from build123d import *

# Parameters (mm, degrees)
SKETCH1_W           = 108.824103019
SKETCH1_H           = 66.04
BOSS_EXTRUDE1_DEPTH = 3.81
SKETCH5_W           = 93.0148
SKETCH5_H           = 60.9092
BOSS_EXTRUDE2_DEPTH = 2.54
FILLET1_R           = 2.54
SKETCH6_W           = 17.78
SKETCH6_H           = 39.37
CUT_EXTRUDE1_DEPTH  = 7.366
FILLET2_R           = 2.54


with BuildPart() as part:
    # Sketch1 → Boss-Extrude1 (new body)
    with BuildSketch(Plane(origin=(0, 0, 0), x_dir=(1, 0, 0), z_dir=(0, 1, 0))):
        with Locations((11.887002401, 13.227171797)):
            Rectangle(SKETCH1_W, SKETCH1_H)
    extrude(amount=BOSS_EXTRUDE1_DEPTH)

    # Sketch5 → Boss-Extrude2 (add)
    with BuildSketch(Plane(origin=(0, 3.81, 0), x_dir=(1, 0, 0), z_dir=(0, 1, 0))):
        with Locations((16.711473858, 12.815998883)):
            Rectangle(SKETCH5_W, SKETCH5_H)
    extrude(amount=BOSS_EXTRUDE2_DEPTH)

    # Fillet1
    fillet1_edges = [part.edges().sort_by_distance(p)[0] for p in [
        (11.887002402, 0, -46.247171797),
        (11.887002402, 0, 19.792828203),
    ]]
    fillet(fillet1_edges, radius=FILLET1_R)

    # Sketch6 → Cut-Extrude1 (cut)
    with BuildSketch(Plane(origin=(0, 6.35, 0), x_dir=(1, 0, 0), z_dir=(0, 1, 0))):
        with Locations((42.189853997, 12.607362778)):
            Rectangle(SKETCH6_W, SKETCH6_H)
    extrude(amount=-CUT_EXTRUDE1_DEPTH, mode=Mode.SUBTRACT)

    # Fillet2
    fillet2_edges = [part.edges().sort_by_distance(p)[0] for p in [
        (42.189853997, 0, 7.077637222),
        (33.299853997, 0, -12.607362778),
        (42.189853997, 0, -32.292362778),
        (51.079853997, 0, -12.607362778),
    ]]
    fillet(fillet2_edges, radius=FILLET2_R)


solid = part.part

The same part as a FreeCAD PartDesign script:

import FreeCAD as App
import Part
import Sketcher
from FreeCAD import Vector
Q = App.Units.Quantity


def edges_at(feature, points):
    """Names of the edges that pass closest to the given points."""
    edges = feature.Shape.Edges
    near = lambda p: min(range(len(edges)), key=lambda i: edges[i].distToShape(Part.Vertex(*p))[0])
    return sorted({f"Edge{near(p) + 1}" for p in points})

doc = App.newDocument("Part")
body = doc.addObject("PartDesign::Body", "Body")

# Sketch on XZ plane
sketch1 = body.newObject("Sketcher::SketchObject", "Sketch")
sketch1.AttachmentSupport = (doc.getObject("XZ_Plane"), [""])
sketch1.MapMode = "FlatFace"
sketch1.addGeometry(Part.LineSegment(Vector(-43, -46, 0), Vector(-43, 20, 0)), False)
sketch1.addGeometry(Part.LineSegment(Vector(-43, 20, 0), Vector(66, 20, 0)), False)
sketch1.addGeometry(Part.LineSegment(Vector(66, 20, 0), Vector(66, -46, 0)), False)
sketch1.addGeometry(Part.LineSegment(Vector(66, -46, 0), Vector(-43, -46, 0)), False)
sketch1.addConstraint(Sketcher.Constraint("Coincident", 0, 2, 1, 1))
sketch1.addConstraint(Sketcher.Constraint("Coincident", 1, 2, 2, 1))
sketch1.addConstraint(Sketcher.Constraint("Coincident", 2, 2, 3, 1))
sketch1.addConstraint(Sketcher.Constraint("Coincident", 3, 2, 0, 1))
sketch1.addConstraint(Sketcher.Constraint("Vertical", 0))
sketch1.addConstraint(Sketcher.Constraint("Horizontal", 1))
sketch1.addConstraint(Sketcher.Constraint("Vertical", 2))
sketch1.addConstraint(Sketcher.Constraint("Horizontal", 3))
sketch1.addConstraint(Sketcher.Constraint("DistanceY", 0, 1, 0, 2, Q("2.6 in")))
sketch1.addConstraint(Sketcher.Constraint("DistanceX", 1, 1, 1, 2, 108.824103))
sketch1.addConstraint(Sketcher.Constraint("DistanceX", 0, 2, -1, 1, 42.525049))
sketch1.addConstraint(Sketcher.Constraint("DistanceY", -1, 1, 0, 2, 19.792828))
pad1 = body.newObject("PartDesign::Pad", "Pad")
pad1.Profile = sketch1
pad1.Length = Q("0.15 in")
pad1.Reversed = True

# Sketch on XZ plane
sketch2 = body.newObject("Sketcher::SketchObject", "Sketch001")
sketch2.AttachmentSupport = (doc.getObject("XZ_Plane"), [""])
sketch2.MapMode = "FlatFace"
sketch2.AttachmentOffset = App.Placement(Vector(0, 0, -0.15 * 25.4), App.Rotation())
sketch2.addGeometry(Part.LineSegment(Vector(-30, -43, 0), Vector(-30, 18, 0)), False)
sketch2.addGeometry(Part.LineSegment(Vector(-30, 18, 0), Vector(63, 18, 0)), False)
sketch2.addGeometry(Part.LineSegment(Vector(63, 18, 0), Vector(63, -43, 0)), False)
sketch2.addGeometry(Part.LineSegment(Vector(63, -43, 0), Vector(-30, -43, 0)), False)
sketch2.addConstraint(Sketcher.Constraint("Coincident", 0, 2, 1, 1))
sketch2.addConstraint(Sketcher.Constraint("Coincident", 1, 2, 2, 1))
sketch2.addConstraint(Sketcher.Constraint("Coincident", 2, 2, 3, 1))
sketch2.addConstraint(Sketcher.Constraint("Coincident", 3, 2, 0, 1))
sketch2.addConstraint(Sketcher.Constraint("Vertical", 0))
sketch2.addConstraint(Sketcher.Constraint("Horizontal", 1))
sketch2.addConstraint(Sketcher.Constraint("Vertical", 2))
sketch2.addConstraint(Sketcher.Constraint("Horizontal", 3))
sketch2.addConstraint(Sketcher.Constraint("DistanceX", 1, 1, 1, 2, Q("3.662 in")))
sketch2.addConstraint(Sketcher.Constraint("DistanceY", 0, 1, 0, 2, Q("2.398 in")))
sketch2.addConstraint(Sketcher.Constraint("DistanceY", -1, 1, 0, 2, 17.638601))
sketch2.addConstraint(Sketcher.Constraint("DistanceX", 0, 2, -1, 1, 29.795926))
pad2 = body.newObject("PartDesign::Pad", "Pad001")
pad2.Profile = sketch2
pad2.Length = Q("0.1 in")
pad2.Reversed = True
doc.recompute()

fillet = body.newObject("PartDesign::Fillet", "Fillet")
fillet.Base = (pad2, edges_at(pad2, [(11.887, 0, -46.247), (11.887, 0, 19.793)]))
fillet.Radius = Q("0.1 in")

# Sketch on XZ plane
sketch3 = body.newObject("Sketcher::SketchObject", "Sketch002")
sketch3.AttachmentSupport = (doc.getObject("XZ_Plane"), [""])
sketch3.MapMode = "FlatFace"
sketch3.AttachmentOffset = App.Placement(Vector(0, 0, -0.25 * 25.4), App.Rotation())
sketch3.addGeometry(Part.LineSegment(Vector(33, -32, 0), Vector(33, 7, 0)), False)
sketch3.addGeometry(Part.LineSegment(Vector(33, 7, 0), Vector(51, 7, 0)), False)
sketch3.addGeometry(Part.LineSegment(Vector(51, 7, 0), Vector(51, -32, 0)), False)
sketch3.addGeometry(Part.LineSegment(Vector(51, -32, 0), Vector(33, -32, 0)), False)
sketch3.addConstraint(Sketcher.Constraint("Coincident", 0, 2, 1, 1))
sketch3.addConstraint(Sketcher.Constraint("Coincident", 1, 2, 2, 1))
sketch3.addConstraint(Sketcher.Constraint("Coincident", 2, 2, 3, 1))
sketch3.addConstraint(Sketcher.Constraint("Coincident", 3, 2, 0, 1))
sketch3.addConstraint(Sketcher.Constraint("Vertical", 0))
sketch3.addConstraint(Sketcher.Constraint("Horizontal", 1))
sketch3.addConstraint(Sketcher.Constraint("Vertical", 2))
sketch3.addConstraint(Sketcher.Constraint("Horizontal", 3))
sketch3.addConstraint(Sketcher.Constraint("DistanceX", 1, 1, 1, 2, Q("0.7 in")))
sketch3.addConstraint(Sketcher.Constraint("DistanceY", 0, 1, 0, 2, Q("1.55 in")))
sketch3.addConstraint(Sketcher.Constraint("DistanceX", -1, 1, 0, 2, 33.299854))
sketch3.addConstraint(Sketcher.Constraint("DistanceY", -1, 1, 0, 2, 7.077637))
pocket1 = body.newObject("PartDesign::Pocket", "Pocket")
pocket1.Profile = sketch3
pocket1.Length = Q("0.29 in")
pocket1.Reversed = True
doc.recompute()

fillet2 = body.newObject("PartDesign::Fillet", "Fillet001")
fillet2.Base = (pocket1, edges_at(pocket1, [
    (42.19, 0, 7.078),
    (33.3, 0, -12.607),
    (42.19, 0, -32.292),
    (51.08, 0, -12.607),
]))
fillet2.Radius = Q("0.1 in")

doc.recompute()
